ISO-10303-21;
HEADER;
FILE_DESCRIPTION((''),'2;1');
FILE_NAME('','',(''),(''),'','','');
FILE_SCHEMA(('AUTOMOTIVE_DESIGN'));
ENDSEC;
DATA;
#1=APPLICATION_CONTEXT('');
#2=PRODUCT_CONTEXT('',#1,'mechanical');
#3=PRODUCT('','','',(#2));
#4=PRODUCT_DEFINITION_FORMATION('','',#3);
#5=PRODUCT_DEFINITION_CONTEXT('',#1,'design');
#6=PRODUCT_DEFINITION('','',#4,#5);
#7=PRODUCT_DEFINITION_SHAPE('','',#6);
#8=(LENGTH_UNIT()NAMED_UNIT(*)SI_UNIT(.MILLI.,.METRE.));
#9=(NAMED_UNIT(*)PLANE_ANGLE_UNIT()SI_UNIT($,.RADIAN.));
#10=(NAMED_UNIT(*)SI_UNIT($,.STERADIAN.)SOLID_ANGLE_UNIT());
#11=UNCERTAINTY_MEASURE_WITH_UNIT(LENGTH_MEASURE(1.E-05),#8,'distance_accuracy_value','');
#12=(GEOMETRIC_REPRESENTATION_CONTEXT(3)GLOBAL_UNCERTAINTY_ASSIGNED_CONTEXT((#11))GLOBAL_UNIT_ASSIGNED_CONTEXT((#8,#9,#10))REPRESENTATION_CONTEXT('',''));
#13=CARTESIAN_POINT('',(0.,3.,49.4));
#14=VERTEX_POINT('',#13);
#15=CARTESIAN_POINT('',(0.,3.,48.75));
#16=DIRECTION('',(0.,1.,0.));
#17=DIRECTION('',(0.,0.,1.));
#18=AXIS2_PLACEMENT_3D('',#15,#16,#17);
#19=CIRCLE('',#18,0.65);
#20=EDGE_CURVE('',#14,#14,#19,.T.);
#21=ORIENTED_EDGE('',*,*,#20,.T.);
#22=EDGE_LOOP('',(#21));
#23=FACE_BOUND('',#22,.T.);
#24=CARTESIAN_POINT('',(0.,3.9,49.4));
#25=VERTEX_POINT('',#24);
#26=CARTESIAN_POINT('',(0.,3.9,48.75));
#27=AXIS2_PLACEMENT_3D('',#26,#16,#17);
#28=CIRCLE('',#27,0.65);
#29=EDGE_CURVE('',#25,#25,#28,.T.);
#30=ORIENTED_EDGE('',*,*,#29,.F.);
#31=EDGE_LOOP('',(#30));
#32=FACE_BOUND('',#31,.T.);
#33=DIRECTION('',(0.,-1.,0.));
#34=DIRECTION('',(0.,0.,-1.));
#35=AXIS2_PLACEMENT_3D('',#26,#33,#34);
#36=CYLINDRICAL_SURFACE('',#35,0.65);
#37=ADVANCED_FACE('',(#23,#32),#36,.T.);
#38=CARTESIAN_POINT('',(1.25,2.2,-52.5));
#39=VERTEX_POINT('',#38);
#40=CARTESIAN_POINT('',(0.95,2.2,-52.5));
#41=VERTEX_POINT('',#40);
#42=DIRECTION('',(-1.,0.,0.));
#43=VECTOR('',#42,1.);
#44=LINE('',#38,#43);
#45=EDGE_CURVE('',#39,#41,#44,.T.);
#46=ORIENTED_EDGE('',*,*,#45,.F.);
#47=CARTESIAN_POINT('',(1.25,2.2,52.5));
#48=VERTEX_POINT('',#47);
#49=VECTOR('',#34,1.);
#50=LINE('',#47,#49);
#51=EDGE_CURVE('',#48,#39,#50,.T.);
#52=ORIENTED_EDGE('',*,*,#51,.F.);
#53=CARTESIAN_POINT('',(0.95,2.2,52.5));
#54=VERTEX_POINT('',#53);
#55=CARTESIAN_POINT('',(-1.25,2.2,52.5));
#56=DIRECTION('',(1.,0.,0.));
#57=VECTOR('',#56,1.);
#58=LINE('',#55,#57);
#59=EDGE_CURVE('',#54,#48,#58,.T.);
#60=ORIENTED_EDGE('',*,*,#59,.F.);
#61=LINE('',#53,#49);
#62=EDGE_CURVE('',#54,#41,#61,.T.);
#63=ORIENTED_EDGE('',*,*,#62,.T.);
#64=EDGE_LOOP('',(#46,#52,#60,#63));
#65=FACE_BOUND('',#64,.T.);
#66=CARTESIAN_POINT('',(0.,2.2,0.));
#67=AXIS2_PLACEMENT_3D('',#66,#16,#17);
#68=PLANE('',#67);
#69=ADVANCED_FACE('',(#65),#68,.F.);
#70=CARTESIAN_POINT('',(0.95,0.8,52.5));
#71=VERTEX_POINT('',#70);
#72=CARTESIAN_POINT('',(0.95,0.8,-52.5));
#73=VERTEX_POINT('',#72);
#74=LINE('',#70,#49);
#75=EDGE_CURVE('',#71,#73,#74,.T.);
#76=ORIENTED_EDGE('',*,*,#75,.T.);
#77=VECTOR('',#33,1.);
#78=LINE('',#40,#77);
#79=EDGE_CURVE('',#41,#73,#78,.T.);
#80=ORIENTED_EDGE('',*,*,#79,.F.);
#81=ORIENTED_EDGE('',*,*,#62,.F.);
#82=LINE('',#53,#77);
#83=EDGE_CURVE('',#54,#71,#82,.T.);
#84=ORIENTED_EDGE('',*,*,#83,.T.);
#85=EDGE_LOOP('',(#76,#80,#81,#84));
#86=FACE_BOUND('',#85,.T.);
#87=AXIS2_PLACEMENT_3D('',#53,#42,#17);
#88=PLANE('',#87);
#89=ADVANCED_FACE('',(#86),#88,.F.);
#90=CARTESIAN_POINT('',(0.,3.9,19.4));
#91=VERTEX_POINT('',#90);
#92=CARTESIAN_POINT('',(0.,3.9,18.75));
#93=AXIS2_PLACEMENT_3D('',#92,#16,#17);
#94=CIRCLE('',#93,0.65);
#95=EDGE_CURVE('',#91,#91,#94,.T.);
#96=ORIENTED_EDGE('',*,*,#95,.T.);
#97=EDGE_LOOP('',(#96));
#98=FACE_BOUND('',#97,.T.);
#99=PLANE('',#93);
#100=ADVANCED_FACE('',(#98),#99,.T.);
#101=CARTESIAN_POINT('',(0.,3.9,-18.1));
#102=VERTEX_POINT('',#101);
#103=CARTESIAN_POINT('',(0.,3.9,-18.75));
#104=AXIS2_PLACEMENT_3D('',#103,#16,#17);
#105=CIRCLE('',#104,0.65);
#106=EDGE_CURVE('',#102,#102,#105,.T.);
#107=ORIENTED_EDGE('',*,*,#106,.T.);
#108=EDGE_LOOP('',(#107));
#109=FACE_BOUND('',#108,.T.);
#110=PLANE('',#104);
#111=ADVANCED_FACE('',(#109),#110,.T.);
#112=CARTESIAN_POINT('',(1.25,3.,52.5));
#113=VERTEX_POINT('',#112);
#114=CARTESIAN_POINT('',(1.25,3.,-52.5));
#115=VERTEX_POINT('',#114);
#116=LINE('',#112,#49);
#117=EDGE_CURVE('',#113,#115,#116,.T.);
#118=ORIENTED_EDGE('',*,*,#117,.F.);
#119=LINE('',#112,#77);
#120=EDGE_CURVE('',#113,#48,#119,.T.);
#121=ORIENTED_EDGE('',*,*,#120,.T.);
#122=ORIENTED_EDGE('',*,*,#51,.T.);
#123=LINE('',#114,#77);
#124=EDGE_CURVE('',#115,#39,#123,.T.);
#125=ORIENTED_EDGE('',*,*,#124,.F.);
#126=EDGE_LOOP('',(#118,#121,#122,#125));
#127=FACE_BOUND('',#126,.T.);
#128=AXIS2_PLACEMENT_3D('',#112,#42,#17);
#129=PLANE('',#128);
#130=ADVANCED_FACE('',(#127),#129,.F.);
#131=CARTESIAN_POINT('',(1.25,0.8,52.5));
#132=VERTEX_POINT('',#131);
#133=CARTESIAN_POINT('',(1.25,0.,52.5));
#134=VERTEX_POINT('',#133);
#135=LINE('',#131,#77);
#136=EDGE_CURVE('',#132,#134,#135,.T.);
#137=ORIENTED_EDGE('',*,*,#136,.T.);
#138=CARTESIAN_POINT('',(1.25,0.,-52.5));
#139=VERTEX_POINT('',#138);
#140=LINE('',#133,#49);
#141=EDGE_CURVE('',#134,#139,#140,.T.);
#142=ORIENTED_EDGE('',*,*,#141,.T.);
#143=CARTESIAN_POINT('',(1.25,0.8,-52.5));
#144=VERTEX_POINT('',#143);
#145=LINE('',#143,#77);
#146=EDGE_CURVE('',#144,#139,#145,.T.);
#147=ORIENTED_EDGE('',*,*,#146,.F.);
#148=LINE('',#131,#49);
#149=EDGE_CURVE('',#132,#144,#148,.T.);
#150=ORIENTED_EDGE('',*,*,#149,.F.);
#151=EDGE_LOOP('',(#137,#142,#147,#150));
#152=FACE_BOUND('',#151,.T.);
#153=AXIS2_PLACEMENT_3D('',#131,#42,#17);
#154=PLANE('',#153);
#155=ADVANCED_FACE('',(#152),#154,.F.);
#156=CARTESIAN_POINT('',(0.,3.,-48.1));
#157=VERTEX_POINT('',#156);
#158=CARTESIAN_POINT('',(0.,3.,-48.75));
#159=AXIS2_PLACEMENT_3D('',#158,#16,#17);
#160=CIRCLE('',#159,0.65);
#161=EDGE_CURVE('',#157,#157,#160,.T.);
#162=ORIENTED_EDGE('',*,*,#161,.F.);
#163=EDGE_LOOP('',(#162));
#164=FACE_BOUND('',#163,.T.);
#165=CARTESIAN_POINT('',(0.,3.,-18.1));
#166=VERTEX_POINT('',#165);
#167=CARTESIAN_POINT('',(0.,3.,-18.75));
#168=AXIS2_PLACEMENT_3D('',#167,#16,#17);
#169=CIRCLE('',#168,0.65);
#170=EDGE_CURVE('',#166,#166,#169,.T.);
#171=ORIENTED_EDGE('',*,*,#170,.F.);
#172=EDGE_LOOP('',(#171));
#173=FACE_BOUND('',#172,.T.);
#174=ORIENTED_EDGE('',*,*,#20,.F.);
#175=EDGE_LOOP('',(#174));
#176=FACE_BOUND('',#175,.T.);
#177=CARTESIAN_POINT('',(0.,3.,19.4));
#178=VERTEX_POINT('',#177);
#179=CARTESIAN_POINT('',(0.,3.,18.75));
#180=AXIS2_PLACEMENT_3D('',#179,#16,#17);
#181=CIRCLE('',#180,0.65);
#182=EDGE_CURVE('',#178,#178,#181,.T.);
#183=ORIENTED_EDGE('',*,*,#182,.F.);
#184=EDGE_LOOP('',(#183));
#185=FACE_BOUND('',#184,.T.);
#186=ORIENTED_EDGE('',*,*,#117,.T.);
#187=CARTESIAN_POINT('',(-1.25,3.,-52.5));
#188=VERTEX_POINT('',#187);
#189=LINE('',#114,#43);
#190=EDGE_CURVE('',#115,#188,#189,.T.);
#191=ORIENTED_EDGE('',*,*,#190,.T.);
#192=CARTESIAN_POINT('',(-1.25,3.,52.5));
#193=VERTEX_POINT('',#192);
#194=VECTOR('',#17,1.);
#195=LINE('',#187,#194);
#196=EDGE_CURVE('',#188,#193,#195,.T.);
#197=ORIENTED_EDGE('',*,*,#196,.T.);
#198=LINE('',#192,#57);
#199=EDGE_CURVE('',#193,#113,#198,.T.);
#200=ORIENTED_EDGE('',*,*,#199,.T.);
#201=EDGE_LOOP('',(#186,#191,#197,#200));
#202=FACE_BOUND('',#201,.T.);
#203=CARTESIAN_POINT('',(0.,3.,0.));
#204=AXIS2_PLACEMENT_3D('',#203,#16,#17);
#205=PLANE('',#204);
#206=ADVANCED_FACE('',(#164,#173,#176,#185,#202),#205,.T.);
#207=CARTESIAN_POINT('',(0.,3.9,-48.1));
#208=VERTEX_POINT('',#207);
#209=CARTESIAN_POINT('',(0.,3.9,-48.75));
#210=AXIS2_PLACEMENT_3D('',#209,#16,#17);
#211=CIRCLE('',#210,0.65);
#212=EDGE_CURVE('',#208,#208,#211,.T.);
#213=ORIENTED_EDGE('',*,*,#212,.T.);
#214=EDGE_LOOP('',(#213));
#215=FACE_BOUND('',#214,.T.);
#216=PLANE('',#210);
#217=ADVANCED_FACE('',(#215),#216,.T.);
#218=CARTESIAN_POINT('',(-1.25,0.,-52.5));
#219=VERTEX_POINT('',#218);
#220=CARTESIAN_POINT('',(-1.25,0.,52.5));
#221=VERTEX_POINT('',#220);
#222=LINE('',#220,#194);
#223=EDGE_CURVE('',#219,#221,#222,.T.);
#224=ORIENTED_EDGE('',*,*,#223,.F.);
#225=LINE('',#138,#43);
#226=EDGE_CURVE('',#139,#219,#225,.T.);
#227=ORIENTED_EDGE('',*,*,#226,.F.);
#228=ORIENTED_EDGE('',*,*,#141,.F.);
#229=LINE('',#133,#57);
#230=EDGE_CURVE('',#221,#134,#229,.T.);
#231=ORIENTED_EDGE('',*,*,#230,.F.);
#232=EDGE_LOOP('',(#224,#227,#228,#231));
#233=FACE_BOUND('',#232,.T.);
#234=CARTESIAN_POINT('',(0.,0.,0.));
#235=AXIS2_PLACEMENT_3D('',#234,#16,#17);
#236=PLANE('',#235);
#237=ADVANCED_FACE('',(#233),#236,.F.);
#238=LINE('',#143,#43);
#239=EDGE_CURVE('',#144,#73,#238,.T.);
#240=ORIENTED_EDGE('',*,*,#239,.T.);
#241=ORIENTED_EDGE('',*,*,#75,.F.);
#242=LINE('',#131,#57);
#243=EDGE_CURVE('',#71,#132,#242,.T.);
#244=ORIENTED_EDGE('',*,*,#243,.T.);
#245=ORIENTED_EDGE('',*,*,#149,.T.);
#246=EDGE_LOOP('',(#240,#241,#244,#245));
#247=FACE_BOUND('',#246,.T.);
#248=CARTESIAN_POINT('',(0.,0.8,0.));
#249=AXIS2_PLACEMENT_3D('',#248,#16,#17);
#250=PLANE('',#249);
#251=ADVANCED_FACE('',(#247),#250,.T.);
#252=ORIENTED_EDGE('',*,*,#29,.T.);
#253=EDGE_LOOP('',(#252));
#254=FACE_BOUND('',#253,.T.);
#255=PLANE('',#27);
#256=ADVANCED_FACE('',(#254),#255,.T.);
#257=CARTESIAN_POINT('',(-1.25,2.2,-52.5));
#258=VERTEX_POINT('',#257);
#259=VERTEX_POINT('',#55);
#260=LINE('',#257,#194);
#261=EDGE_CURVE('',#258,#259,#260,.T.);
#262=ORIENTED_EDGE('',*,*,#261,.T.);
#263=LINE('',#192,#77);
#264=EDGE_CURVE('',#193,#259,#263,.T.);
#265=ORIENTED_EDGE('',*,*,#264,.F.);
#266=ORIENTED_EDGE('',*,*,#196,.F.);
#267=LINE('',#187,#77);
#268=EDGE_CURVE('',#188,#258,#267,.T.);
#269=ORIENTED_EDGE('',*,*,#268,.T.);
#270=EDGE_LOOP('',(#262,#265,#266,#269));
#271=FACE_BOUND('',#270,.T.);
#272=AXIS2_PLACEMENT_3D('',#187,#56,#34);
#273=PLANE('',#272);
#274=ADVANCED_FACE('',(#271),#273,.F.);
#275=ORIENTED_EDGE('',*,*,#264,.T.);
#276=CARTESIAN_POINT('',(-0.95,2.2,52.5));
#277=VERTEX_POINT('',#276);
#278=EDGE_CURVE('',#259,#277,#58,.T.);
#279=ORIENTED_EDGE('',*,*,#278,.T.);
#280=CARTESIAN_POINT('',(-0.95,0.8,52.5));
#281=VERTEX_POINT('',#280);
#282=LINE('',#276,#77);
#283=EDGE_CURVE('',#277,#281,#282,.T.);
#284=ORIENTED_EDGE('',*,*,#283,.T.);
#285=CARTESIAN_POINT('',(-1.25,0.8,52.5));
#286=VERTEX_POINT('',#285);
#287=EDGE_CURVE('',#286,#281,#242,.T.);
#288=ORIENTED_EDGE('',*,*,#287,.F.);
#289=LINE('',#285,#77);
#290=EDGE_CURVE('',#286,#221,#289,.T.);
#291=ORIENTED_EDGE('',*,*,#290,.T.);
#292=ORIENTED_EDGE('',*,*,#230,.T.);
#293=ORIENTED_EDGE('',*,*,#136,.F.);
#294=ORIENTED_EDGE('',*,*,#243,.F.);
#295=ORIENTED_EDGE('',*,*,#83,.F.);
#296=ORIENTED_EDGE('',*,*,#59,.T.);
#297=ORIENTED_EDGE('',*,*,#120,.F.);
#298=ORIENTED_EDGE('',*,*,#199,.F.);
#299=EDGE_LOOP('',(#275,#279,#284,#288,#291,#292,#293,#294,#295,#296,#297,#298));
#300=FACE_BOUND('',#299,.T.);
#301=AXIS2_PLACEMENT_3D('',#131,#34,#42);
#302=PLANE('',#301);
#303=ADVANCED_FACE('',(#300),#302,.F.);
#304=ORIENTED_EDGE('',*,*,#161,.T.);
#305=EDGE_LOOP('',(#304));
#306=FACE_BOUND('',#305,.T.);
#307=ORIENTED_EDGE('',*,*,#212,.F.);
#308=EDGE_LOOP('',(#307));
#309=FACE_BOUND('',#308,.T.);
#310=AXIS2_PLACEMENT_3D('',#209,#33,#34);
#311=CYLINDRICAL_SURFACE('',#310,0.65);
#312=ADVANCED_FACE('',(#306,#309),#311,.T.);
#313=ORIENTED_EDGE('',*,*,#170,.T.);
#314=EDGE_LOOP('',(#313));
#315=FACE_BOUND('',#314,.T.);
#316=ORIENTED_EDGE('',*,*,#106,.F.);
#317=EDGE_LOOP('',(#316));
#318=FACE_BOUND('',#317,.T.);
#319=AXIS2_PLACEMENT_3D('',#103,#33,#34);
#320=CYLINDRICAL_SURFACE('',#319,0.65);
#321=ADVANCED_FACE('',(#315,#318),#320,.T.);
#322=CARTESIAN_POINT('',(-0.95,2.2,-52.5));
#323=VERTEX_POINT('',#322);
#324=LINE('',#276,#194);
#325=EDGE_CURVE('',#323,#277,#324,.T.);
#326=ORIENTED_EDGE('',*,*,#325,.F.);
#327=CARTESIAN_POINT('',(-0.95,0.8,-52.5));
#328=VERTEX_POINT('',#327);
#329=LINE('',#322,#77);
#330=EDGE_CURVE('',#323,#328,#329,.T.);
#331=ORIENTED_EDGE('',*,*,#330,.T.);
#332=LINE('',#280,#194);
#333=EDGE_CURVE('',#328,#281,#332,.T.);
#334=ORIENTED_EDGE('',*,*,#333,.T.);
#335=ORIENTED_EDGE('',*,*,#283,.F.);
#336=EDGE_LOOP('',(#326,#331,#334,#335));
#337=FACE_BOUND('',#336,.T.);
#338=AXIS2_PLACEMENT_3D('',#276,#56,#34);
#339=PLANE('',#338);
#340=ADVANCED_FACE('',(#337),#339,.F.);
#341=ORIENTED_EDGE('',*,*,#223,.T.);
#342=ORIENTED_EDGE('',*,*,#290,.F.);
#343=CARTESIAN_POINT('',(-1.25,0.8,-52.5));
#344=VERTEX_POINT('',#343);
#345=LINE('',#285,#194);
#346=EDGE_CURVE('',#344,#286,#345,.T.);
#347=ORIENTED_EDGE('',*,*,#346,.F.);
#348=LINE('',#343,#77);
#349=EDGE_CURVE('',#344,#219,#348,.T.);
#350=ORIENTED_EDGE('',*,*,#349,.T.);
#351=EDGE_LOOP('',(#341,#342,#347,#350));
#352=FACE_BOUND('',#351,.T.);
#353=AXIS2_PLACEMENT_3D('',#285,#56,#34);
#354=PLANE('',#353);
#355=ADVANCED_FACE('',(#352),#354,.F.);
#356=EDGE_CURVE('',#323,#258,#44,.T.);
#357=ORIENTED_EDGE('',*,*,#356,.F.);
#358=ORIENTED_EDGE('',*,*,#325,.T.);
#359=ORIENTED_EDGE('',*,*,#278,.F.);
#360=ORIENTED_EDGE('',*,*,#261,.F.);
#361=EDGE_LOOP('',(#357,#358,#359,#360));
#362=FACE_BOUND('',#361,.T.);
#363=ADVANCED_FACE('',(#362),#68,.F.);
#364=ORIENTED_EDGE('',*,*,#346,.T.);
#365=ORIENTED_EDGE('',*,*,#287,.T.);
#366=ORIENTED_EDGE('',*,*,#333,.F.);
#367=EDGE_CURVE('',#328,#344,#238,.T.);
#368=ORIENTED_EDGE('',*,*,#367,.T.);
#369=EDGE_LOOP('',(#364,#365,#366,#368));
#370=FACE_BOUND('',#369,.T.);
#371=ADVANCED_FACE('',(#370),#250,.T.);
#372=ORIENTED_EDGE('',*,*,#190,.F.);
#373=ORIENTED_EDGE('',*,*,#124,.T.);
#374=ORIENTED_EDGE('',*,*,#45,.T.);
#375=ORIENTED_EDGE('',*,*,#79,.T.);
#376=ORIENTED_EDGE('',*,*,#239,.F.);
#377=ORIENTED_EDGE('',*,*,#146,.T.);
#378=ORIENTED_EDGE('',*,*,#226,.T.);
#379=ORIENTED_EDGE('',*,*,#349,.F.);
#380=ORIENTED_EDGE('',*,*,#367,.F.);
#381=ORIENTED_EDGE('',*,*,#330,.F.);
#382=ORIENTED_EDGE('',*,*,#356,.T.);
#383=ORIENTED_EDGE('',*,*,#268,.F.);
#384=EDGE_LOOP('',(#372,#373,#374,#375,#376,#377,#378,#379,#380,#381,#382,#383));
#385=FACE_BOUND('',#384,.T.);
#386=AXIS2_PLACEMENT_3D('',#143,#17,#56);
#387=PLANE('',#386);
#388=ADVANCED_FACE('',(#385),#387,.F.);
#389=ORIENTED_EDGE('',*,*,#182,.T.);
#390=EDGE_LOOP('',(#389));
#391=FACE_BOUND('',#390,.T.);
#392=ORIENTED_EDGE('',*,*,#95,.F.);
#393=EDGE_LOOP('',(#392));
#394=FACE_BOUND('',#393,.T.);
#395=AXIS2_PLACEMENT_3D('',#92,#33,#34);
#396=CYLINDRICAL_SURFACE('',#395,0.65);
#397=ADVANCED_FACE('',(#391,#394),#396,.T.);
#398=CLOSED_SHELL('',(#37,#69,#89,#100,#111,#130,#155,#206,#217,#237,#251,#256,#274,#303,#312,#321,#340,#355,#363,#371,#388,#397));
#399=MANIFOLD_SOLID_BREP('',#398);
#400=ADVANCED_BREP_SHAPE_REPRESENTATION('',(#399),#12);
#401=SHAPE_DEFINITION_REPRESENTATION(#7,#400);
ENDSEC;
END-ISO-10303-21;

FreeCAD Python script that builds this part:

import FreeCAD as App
import Part
import Sketcher
from FreeCAD import Vector


def add_polygon(sketch, points):
    """Adds a closed chain of lines whose ends are joined by coincident constraints."""
    first, n = sketch.GeometryCount, len(points)
    for a, b in zip(points, points[1:] + points[:1]):
        sketch.addGeometry(Part.LineSegment(App.Vector(*a, 0), App.Vector(*b, 0)), False)
    for i in range(n):
        sketch.addConstraint(Sketcher.Constraint("Coincident", first + i, 2, first + (i + 1) % n, 1))

doc = App.newDocument("Part")
body = doc.addObject("PartDesign::Body", "Body")

# Sketch on XZ plane
sketch1 = doc.addObject("Sketcher::SketchObject", "Sketch")
body.addObject(sketch1)
sketch1.AttachmentSupport = (doc.XZ_Plane, [""])
sketch1.MapMode = "FlatFace"
add_polygon(sketch1, [(-1.2, -52.5), (-1.2, 52.5), (1.2, 52.5), (1.2, -52.5)])  # lines 0-3
sketch1.addConstraint(Sketcher.Constraint("Vertical", 0))
sketch1.addConstraint(Sketcher.Constraint("Horizontal", 1))
sketch1.addConstraint(Sketcher.Constraint("Vertical", 2))
sketch1.addConstraint(Sketcher.Constraint("Horizontal", 3))
sketch1.addConstraint(Sketcher.Constraint("Symmetric", 0, 2, 2, 2, -1, 1))
sketch1.addConstraint(Sketcher.Constraint("DistanceY", 0, 1, 0, 2, 105.0))
sketch1.addConstraint(Sketcher.Constraint("DistanceX", 1, 1, 1, 2, 2.5))
pad1 = doc.addObject("PartDesign::Pad", "Pad")
body.addObject(pad1)
pad1.Profile = sketch1
pad1.Length = 0.8
pad1.Reversed = True

# Sketch on XZ plane
sketch2 = doc.addObject("Sketcher::SketchObject", "Sketch001")
body.addObject(sketch2)
sketch2.AttachmentSupport = (doc.XZ_Plane, [""])
sketch2.MapMode = "FlatFace"
sketch2.AttachmentOffset = App.Placement(Vector(0, 0, -0.8), App.Rotation())
add_polygon(sketch2, [(-0.9, -52.5), (-0.9, 52.5), (0.9, 52.5), (0.9, -52.5)])  # lines 0-3
sketch2.addConstraint(Sketcher.Constraint("Vertical", 0))
sketch2.addConstraint(Sketcher.Constraint("Horizontal", 1))
sketch2.addConstraint(Sketcher.Constraint("Vertical", 2))
sketch2.addConstraint(Sketcher.Constraint("Horizontal", 3))
sketch2.addConstraint(Sketcher.Constraint("Symmetric", 0, 2, 2, 2, -1, 1))
sketch2.addConstraint(Sketcher.Constraint("DistanceY", 0, 1, 0, 2, 105.0))
sketch2.addConstraint(Sketcher.Constraint("DistanceX", 1, 1, 1, 2, 1.9))
pad2 = doc.addObject("PartDesign::Pad", "Pad001")
body.addObject(pad2)
pad2.Profile = sketch2
pad2.Length = 1.4
pad2.Reversed = True

# Sketch on XZ plane
sketch3 = doc.addObject("Sketcher::SketchObject", "Sketch002")
body.addObject(sketch3)
sketch3.AttachmentSupport = (doc.XZ_Plane, [""])
sketch3.MapMode = "FlatFace"
sketch3.AttachmentOffset = App.Placement(Vector(0, 0, -2.2), App.Rotation())
add_polygon(sketch3, [(-1.2, -52.5), (-1.2, 52.5), (1.2, 52.5), (1.2, -52.5)])  # lines 0-3
sketch3.addConstraint(Sketcher.Constraint("Vertical", 0))
sketch3.addConstraint(Sketcher.Constraint("Horizontal", 1))
sketch3.addConstraint(Sketcher.Constraint("Vertical", 2))
sketch3.addConstraint(Sketcher.Constraint("Horizontal", 3))
sketch3.addConstraint(Sketcher.Constraint("Symmetric", 0, 2, 2, 2, -1, 1))
sketch3.addConstraint(Sketcher.Constraint("DistanceY", 0, 1, 0, 2, 105.0))
sketch3.addConstraint(Sketcher.Constraint("DistanceX", 1, 1, 1, 2, 2.5))
pad3 = doc.addObject("PartDesign::Pad", "Pad002")
body.addObject(pad3)
pad3.Profile = sketch3
pad3.Length = 0.8
pad3.Reversed = True

# Sketch on XZ plane
sketch4 = doc.addObject("Sketcher::SketchObject", "Sketch003")
body.addObject(sketch4)
sketch4.AttachmentSupport = (doc.XZ_Plane, [""])
sketch4.MapMode = "FlatFace"
sketch4.AttachmentOffset = App.Placement(Vector(0, 0, -3), App.Rotation())
sketch4.addGeometry(Part.Circle(Vector(0, -18.8, 0), Vector(0, 0, 1), 0.7), False)
sketch4.addGeometry(Part.Circle(Vector(0, 18.8, 0), Vector(0, 0, 1), 0.7), False)
sketch4.addGeometry(Part.Circle(Vector(0, -48.8, 0), Vector(0, 0, 1), 0.7), False)
sketch4.addGeometry(Part.Circle(Vector(0, 48.8, 0), Vector(0, 0, 1), 0.7), False)
sketch4.addConstraint(Sketcher.Constraint("Equal", 0, 1))
sketch4.addConstraint(Sketcher.Constraint("Equal", 1, 2))
sketch4.addConstraint(Sketcher.Constraint("Equal", 2, 3))
sketch4.addConstraint(Sketcher.Constraint("Symmetric", 0, 3, 1, 3, -1, 1))
sketch4.addConstraint(Sketcher.Constraint("Symmetric", 2, 3, 3, 3, -1, 1))
sketch4.addConstraint(Sketcher.Constraint("PointOnObject", 0, 3, -2))
sketch4.addConstraint(Sketcher.Constraint("PointOnObject", 2, 3, -2))
sketch4.addConstraint(Sketcher.Constraint("Diameter", 0, 1.3))
sketch4.addConstraint(Sketcher.Constraint("DistanceY", 2, 3, 0, 3, 30.0))
sketch4.addConstraint(Sketcher.Constraint("DistanceY", 0, 3, 1, 3, 37.5))
pad4 = doc.addObject("PartDesign::Pad", "Pad003")
body.addObject(pad4)
pad4.Profile = sketch4
pad4.Length = 0.9
pad4.Reversed = True

doc.recompute()
